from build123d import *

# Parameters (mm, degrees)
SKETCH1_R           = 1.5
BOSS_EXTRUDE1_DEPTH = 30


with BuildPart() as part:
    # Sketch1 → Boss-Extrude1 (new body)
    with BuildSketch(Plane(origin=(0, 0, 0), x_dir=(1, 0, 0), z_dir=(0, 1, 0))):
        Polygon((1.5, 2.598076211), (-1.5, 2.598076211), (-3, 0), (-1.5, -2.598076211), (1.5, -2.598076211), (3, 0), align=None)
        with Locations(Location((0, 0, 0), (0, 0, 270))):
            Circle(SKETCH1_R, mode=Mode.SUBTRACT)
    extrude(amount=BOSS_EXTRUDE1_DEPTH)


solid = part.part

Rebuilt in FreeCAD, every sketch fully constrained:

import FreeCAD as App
import Part
import Sketcher

V = App.Vector
Q = App.Units.Quantity


def add_polygon(sketch, points):
    """Adds a closed chain of lines whose ends are joined by coincident constraints."""
    first, n = sketch.GeometryCount, len(points)
    for a, b in zip(points, points[1:] + points[:1]):
        sketch.addGeometry(Part.LineSegment(App.Vector(*a, 0), App.Vector(*b, 0)), False)
    for i in range(n):
        sketch.addConstraint(Sketcher.Constraint("Coincident", first + i, 2, first + (i + 1) % n, 1))

doc = App.newDocument("Part")
body = doc.addObject("PartDesign::Body", "Body")

# Sketch on XZ plane
sketch1 = body.newObject("Sketcher::SketchObject", "Sketch")
sketch1.AttachmentSupport = (doc.getObject("XZ_Plane"), [""])
sketch1.MapMode = "FlatFace"
add_polygon(sketch1, [(1.5, -2.6), (-1.5, -2.6), (-3, 0), (-1.5, 2.6), (1.5, 2.6), (3, 0)])  # lines 0-5
sketch1.addGeometry(Part.Circle(V(0, 0, 0), V(0, 0, 1), 1.5), False)  # 6
sketch1.addConstraint([
    Sketcher.Constraint("Horizontal", 0),
    Sketcher.Constraint("Horizontal", 3),
    Sketcher.Constraint("Coincident", 6, 3, -1, 1),
    Sketcher.Constraint("Symmetric", 0, 2, 3, 2, -1, 1),
    Sketcher.Constraint("Symmetric", 1, 2, 4, 2, -1, 1),
    Sketcher.Constraint("PointOnObject", 1, 2, -1),
    Sketcher.Constraint("Parallel", 2, 5),
    Sketcher.Constraint("Vertical", 0, 2, 2, 2),
    Sketcher.Constraint("Diameter", 6, Q("3 mm")),
    Sketcher.Constraint("DistanceX", 0, 2, 0, 1, Q("3 mm")),
    Sketcher.Constraint("Angle", 1, Q("120 deg")),
    Sketcher.Constraint("Distance", 1, Q("3 mm")),
])
pad1 = body.newObject("PartDesign::Pad", "Pad")
pad1.Profile = sketch1
pad1.Length = 30
pad1.Reversed = True

doc.recompute()
